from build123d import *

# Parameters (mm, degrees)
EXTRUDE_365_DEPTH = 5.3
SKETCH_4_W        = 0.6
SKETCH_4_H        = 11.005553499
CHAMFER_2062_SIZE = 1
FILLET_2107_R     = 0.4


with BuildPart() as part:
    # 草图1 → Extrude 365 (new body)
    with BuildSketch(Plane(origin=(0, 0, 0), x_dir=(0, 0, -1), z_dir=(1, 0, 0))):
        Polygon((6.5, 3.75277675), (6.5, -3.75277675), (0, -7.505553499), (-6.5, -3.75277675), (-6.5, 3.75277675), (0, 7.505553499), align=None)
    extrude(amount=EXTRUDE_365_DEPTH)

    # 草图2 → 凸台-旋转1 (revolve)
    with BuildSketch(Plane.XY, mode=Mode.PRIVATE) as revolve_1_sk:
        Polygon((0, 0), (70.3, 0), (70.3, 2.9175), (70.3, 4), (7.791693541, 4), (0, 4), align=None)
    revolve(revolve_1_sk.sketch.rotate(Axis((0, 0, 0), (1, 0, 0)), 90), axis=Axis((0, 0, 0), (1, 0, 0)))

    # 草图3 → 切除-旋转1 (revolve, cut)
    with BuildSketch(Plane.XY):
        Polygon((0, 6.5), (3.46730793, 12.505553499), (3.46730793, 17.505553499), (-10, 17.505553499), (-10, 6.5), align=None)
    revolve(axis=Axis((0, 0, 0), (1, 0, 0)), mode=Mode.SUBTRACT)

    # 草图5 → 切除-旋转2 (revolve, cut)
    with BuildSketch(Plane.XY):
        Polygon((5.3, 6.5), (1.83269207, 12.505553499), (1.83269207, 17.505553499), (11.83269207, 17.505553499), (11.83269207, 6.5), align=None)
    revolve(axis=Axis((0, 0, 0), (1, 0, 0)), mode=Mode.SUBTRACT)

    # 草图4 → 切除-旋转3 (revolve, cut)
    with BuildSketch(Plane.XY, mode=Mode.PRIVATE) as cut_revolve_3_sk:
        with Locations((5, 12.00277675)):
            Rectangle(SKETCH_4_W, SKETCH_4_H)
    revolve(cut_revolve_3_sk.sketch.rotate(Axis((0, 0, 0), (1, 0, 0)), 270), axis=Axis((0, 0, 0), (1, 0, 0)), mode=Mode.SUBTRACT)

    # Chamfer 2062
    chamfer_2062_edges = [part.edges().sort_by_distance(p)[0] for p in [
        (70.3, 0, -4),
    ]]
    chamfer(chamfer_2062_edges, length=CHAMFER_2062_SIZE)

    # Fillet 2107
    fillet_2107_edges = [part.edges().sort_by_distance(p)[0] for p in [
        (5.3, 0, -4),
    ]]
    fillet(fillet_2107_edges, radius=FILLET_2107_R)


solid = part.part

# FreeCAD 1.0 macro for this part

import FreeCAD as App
import Part
import Sketcher
Q = App.Units.Quantity


def edges_at(feature, points):
    """Names of the edges that pass closest to the given points."""
    edges = feature.Shape.Edges
    near = lambda p: min(range(len(edges)), key=lambda i: edges[i].distToShape(Part.Vertex(*p))[0])
    return sorted({f"Edge{near(p) + 1}" for p in points})

doc = App.newDocument("Part")
params = doc.addObject("Spreadsheet::Sheet", "Params")
for row, (alias, value) in enumerate([
    ("pad1_length", "5.3 mm"),
    ("sketch2_height", "4 mm"),
    ("sketch2_width", "70.3 mm"),
    ("revolution_angle", "360 deg"),
    ("sketch3_width", "10 mm"),
    ("sketch3_height", "5 mm"),
    ("groove_angle", "360 deg"),
    ("sketch4_width", "10 mm"),
    ("sketch4_height", "5 mm"),
    ("groove2_angle", "360 deg"),
    ("sketch5_width", "0.6 mm"),
    ("groove3_angle", "360 deg"),
    ("chamfer_size", "1 mm"),
    ("fillet_radius", "0.4 mm"),
], start=1):
    params.set(f"A{row}", alias)
    params.set(f"B{row}", "=" + value)
    params.setAlias(f"B{row}", alias)

body = doc.addObject("PartDesign::Body", "Body")

sketch1 = body.newObject("Sketcher::SketchObject", "Sketch")
sketch1.AttachmentSupport = (doc.getObject("YZ_Plane"), [""])
sketch1.MapMode = "FlatFace"
sketch1.addGeometry([
    Part.LineSegment(App.Vector(-3.752777, -6.5, 0), App.Vector(3.752777, -6.5, 0)),
    Part.LineSegment(App.Vector(3.752777, -6.5, 0), App.Vector(7.505553, 0, 0)),
    Part.LineSegment(App.Vector(7.505553, 0, 0), App.Vector(3.752777, 6.5, 0)),
    Part.LineSegment(App.Vector(3.752777, 6.5, 0), App.Vector(-3.752777, 6.5, 0)),
    Part.LineSegment(App.Vector(-3.752777, 6.5, 0), App.Vector(-7.505553, 0, 0)),
    Part.LineSegment(App.Vector(-7.505553, 0, 0), App.Vector(-3.752777, -6.5, 0)),
], False)
sketch1.addConstraint([
    Sketcher.Constraint("Coincident", 0, 2, 1, 1),
    Sketcher.Constraint("Coincident", 1, 2, 2, 1),
    Sketcher.Constraint("Coincident", 2, 2, 3, 1),
    Sketcher.Constraint("Coincident", 3, 2, 4, 1),
    Sketcher.Constraint("Coincident", 4, 2, 5, 1),
    Sketcher.Constraint("Coincident", 5, 2, 0, 1),
    Sketcher.Constraint("Horizontal", 0),
    Sketcher.Constraint("Horizontal", 3),
    Sketcher.Constraint("Symmetric", 0, 2, 3, 2, -1, 1),
    Sketcher.Constraint("Symmetric", 1, 2, 4, 2, -1, 1),
    Sketcher.Constraint("PointOnObject", 1, 2, -1),
    Sketcher.Constraint("Parallel", 2, 5),
    Sketcher.Constraint("Vertical", 0, 2, 2, 2),
    Sketcher.Constraint("Angle", 1, Q("60 deg")),
    Sketcher.Constraint("DistanceY", 0, 2, 2, 2, Q("13 mm")),
    Sketcher.Constraint("DistanceX", 0, 1, 0, 2, Q("7.505554 mm")),
])
pad1 = body.newObject("PartDesign::Pad", "Pad")
pad1.Profile = sketch1
pad1.setExpression("Length", "Params.pad1_length")

sketch2 = body.newObject("Sketcher::SketchObject", "Sketch001")
sketch2.AttachmentSupport = (doc.getObject("XY_Plane"), [""])
sketch2.MapMode = "FlatFace"
sketch2.addGeometry([
    Part.LineSegment(App.Vector(0, 0, 0), App.Vector(70.3, 0, 0)),
    Part.LineSegment(App.Vector(70.3, 0, 0), App.Vector(70.3, 4, 0)),
    Part.LineSegment(App.Vector(70.3, 4, 0), App.Vector(0, 4, 0)),
    Part.LineSegment(App.Vector(0, 4, 0), App.Vector(0, 0, 0)),
], False)
sketch2.addConstraint([
    Sketcher.Constraint("Coincident", 0, 2, 1, 1),
    Sketcher.Constraint("Coincident", 1, 2, 2, 1),
    Sketcher.Constraint("Coincident", 2, 2, 3, 1),
    Sketcher.Constraint("Coincident", 3, 2, 0, 1),
    Sketcher.Constraint("Horizontal", 0),
    Sketcher.Constraint("Vertical", 1),
    Sketcher.Constraint("Horizontal", 2),
    Sketcher.Constraint("Vertical", 3),
    Sketcher.Constraint("Coincident", 3, 2, -1, 1),
    Sketcher.Constraint("DistanceY", 1, 1, 1, 2, Q("4 mm")),
    Sketcher.Constraint("DistanceX", 0, 1, 0, 2, Q("70.3 mm")),
])
sketch2.setExpression("Constraints[9]", "Params.sketch2_height")
sketch2.setExpression("Constraints[10]", "Params.sketch2_width")
revolution = body.newObject("PartDesign::Revolution", "Revolution")
revolution.Profile = sketch2
revolution.ReferenceAxis = (sketch2, ["H_Axis"])
revolution.setExpression("Angle", "Params.revolution_angle")

sketch3 = body.newObject("Sketcher::SketchObject", "Sketch002")
sketch3.AttachmentSupport = (doc.getObject("XY_Plane"), [""])
sketch3.MapMode = "FlatFace"
sketch3.addGeometry([
    Part.LineSegment(App.Vector(0, 6.5, 0), App.Vector(3.467308, 12.505553, 0)),
    Part.LineSegment(App.Vector(3.467308, 12.505553, 0), App.Vector(3.467308, 17.505553, 0)),
    Part.LineSegment(App.Vector(3.467308, 17.505553, 0), App.Vector(-10, 17.505553, 0)),
    Part.LineSegment(App.Vector(-10, 17.505553, 0), App.Vector(-10, 6.5, 0)),
    Part.LineSegment(App.Vector(-10, 6.5, 0), App.Vector(0, 6.5, 0)),
], False)
sketch3.addConstraint([
    Sketcher.Constraint("Coincident", 0, 2, 1, 1),
    Sketcher.Constraint("Coincident", 1, 2, 2, 1),
    Sketcher.Constraint("Coincident", 2, 2, 3, 1),
    Sketcher.Constraint("Coincident", 3, 2, 4, 1),
    Sketcher.Constraint("Coincident", 4, 2, 0, 1),
    Sketcher.Constraint("Vertical", 1),
    Sketcher.Constraint("Horizontal", 2),
    Sketcher.Constraint("Vertical", 3),
    Sketcher.Constraint("Horizontal", 4),
    Sketcher.Constraint("PointOnObject", 4, 2, -2),
    Sketcher.Constraint("DistanceX", 4, 1, 4, 2, Q("10 mm")),
    Sketcher.Constraint("DistanceY", 1, 1, 1, 2, Q("5 mm")),
    Sketcher.Constraint("Angle", 0, Q("60 deg")),
    Sketcher.Constraint("DistanceY", -1, 1, 3, 2, Q("6.5 mm")),
    Sketcher.Constraint("DistanceX", 2, 2, 2, 1, Q("13.467308 mm")),
])
sketch3.setExpression("Constraints[10]", "Params.sketch3_width")
sketch3.setExpression("Constraints[11]", "Params.sketch3_height")
groove = body.newObject("PartDesign::Groove", "Groove")
groove.Profile = sketch3
groove.ReferenceAxis = (sketch3, ["H_Axis"])
groove.setExpression("Angle", "Params.groove_angle")

sketch4 = body.newObject("Sketcher::SketchObject", "Sketch003")
sketch4.AttachmentSupport = (doc.getObject("XY_Plane"), [""])
sketch4.MapMode = "FlatFace"
sketch4.addGeometry([
    Part.LineSegment(App.Vector(1.832692, 12.505553, 0), App.Vector(5.3, 6.5, 0)),
    Part.LineSegment(App.Vector(5.3, 6.5, 0), App.Vector(11.832692, 6.5, 0)),
    Part.LineSegment(App.Vector(11.832692, 6.5, 0), App.Vector(11.832692, 17.505553, 0)),
    Part.LineSegment(App.Vector(11.832692, 17.505553, 0), App.Vector(1.832692, 17.505553, 0)),
    Part.LineSegment(App.Vector(1.832692, 17.505553, 0), App.Vector(1.832692, 12.505553, 0)),
], False)
sketch4.addConstraint([
    Sketcher.Constraint("Coincident", 0, 2, 1, 1),
    Sketcher.Constraint("Coincident", 1, 2, 2, 1),
    Sketcher.Constraint("Coincident", 2, 2, 3, 1),
    Sketcher.Constraint("Coincident", 3, 2, 4, 1),
    Sketcher.Constraint("Coincident", 4, 2, 0, 1),
    Sketcher.Constraint("Horizontal", 1),
    Sketcher.Constraint("Vertical", 2),
    Sketcher.Constraint("Horizontal", 3),
    Sketcher.Constraint("Vertical", 4),
    Sketcher.Constraint("DistanceX", 3, 2, 3, 1, Q("10 mm")),
    Sketcher.Constraint("DistanceY", 4, 2, 4, 1, Q("5 mm")),
    Sketcher.Constraint("Angle", 0, Q("-60 deg")),
    Sketcher.Constraint("DistanceX", -1, 1, 0, 2, Q("5.3 mm")),
    Sketcher.Constraint("DistanceY", -1, 1, 0, 2, Q("6.5 mm")),
    Sketcher.Constraint("DistanceX", 1, 1, 1, 2, Q("6.532692 mm")),
])
sketch4.setExpression("Constraints[9]", "Params.sketch4_width")
sketch4.setExpression("Constraints[10]", "Params.sketch4_height")
groove2 = body.newObject("PartDesign::Groove", "Groove001")
groove2.Profile = sketch4
groove2.ReferenceAxis = (sketch4, ["H_Axis"])
groove2.setExpression("Angle", "Params.groove2_angle")

sketch5 = body.newObject("Sketcher::SketchObject", "Sketch004")
sketch5.AttachmentSupport = (doc.getObject("XY_Plane"), [""])
sketch5.MapMode = "FlatFace"
sketch5.addGeometry([
    Part.LineSegment(App.Vector(4.7, 17.505553, 0), App.Vector(4.7, 6.5, 0)),
    Part.LineSegment(App.Vector(4.7, 6.5, 0), App.Vector(5.3, 6.5, 0)),
    Part.LineSegment(App.Vector(5.3, 6.5, 0), App.Vector(5.3, 17.505553, 0)),
    Part.LineSegment(App.Vector(5.3, 17.505553, 0), App.Vector(4.7, 17.505553, 0)),
], False)
sketch5.addConstraint([
    Sketcher.Constraint("Coincident", 0, 2, 1, 1),
    Sketcher.Constraint("Coincident", 1, 2, 2, 1),
    Sketcher.Constraint("Coincident", 2, 2, 3, 1),
    Sketcher.Constraint("Coincident", 3, 2, 0, 1),
    Sketcher.Constraint("Vertical", 0),
    Sketcher.Constraint("Horizontal", 1),
    Sketcher.Constraint("Vertical", 2),
    Sketcher.Constraint("Horizontal", 3),
    Sketcher.Constraint("DistanceX", 1, 1, 1, 2, Q("0.6 mm")),
    Sketcher.Constraint("DistanceX", -1, 1, 0, 2, Q("4.7 mm")),
    Sketcher.Constraint("DistanceY", -1, 1, 0, 2, Q("6.5 mm")),
    Sketcher.Constraint("DistanceY", 0, 2, 0, 1, Q("11.005553 mm")),
])
sketch5.setExpression("Constraints[8]", "Params.sketch5_width")
groove3 = body.newObject("PartDesign::Groove", "Groove002")
groove3.Profile = sketch5
groove3.ReferenceAxis = (sketch5, ["H_Axis"])
groove3.setExpression("Angle", "Params.groove3_angle")
doc.recompute()

chamfer = body.newObject("PartDesign::Chamfer", "Chamfer")
chamfer.Base = (groove3, edges_at(groove3, [(70.3, 0, -4)]))
chamfer.setExpression("Size", "Params.chamfer_size")
doc.recompute()

fillet = body.newObject("PartDesign::Fillet", "Fillet")
fillet.Base = (chamfer, edges_at(chamfer, [(5.3, 0, -4)]))
fillet.setExpression("Radius", "Params.fillet_radius")

doc.recompute()
